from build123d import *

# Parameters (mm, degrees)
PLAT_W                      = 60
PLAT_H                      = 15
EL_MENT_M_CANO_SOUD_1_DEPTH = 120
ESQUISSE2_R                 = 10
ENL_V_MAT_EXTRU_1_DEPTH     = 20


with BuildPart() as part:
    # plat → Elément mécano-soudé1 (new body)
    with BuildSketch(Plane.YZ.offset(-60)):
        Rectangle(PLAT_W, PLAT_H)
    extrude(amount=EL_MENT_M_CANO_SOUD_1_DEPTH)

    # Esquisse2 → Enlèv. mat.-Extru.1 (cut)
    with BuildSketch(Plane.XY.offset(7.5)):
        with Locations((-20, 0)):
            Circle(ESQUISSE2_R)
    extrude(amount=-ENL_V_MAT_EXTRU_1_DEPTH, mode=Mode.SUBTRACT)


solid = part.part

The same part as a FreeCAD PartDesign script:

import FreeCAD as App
import Part
import Sketcher

V = App.Vector


def add_polygon(sketch, points):
    """Adds a closed chain of lines whose ends are joined by coincident constraints."""
    first, n = sketch.GeometryCount, len(points)
    for a, b in zip(points, points[1:] + points[:1]):
        sketch.addGeometry(Part.LineSegment(App.Vector(*a, 0), App.Vector(*b, 0)), False)
    for i in range(n):
        sketch.addConstraint(Sketcher.Constraint("Coincident", first + i, 2, first + (i + 1) % n, 1))

doc = App.newDocument("Part")
params = doc.addObject("Spreadsheet::Sheet", "Params")
for row, (alias, value) in enumerate([
    ("sketch1_width", "60 mm"),
    ("sketch1_height", "15 mm"),
    ("pad1_length", "120 mm"),
    ("sketch2_diameter", "20 mm"),
    ("pocket1_length", "20 mm"),
], start=1):
    params.set(f"A{row}", alias)
    params.set(f"B{row}", "=" + value)
    params.setAlias(f"B{row}", alias)

body = doc.addObject("PartDesign::Body", "Body")

sketch1 = body.newObject("Sketcher::SketchObject", "Sketch")
sketch1.AttachmentSupport = (doc.getObject("YZ_Plane"), [""])
sketch1.MapMode = "FlatFace"
sketch1.AttachmentOffset = App.Placement(V(0, 0, -60), App.Rotation())
add_polygon(sketch1, [(-30, 8), (-30, -8), (30, -8), (30, 8)])
sketch1.addConstraint([
    Sketcher.Constraint("Vertical", 0),
    Sketcher.Constraint("Horizontal", 1),
    Sketcher.Constraint("Vertical", 2),
    Sketcher.Constraint("Horizontal", 3),
    Sketcher.Constraint("Symmetric", 0, 2, 2, 2, -1, 1),
    Sketcher.Constraint("DistanceX", 1, 1, 1, 2, 60.0),
    Sketcher.Constraint("DistanceY", 0, 2, 0, 1, 15.0),
])
sketch1.setExpression("Constraints[9]", "Params.sketch1_width")
sketch1.setExpression("Constraints[10]", "Params.sketch1_height")
pad1 = body.newObject("PartDesign::Pad", "Pad")
pad1.Profile = sketch1
pad1.setExpression("Length", "Params.pad1_length")

sketch2 = body.newObject("Sketcher::SketchObject", "Sketch001")
sketch2.AttachmentSupport = (doc.getObject("XY_Plane"), [""])
sketch2.MapMode = "FlatFace"
sketch2.AttachmentOffset = App.Placement(V(0, 0, 7.5), App.Rotation())
sketch2.addGeometry(Part.Circle(V(-20, 0, 0), V(0, 0, 1), 10), False)
sketch2.addConstraint([
    Sketcher.Constraint("PointOnObject", 0, 3, -1),
    Sketcher.Constraint("Diameter", 0, 20.0),
    Sketcher.Constraint("DistanceX", 0, 3, -1, 1, 20.0),
])
sketch2.setExpression("Constraints[1]", "Params.sketch2_diameter")
pocket1 = body.newObject("PartDesign::Pocket", "Pocket")
pocket1.Profile = sketch2
pocket1.setExpression("Length", "Params.pocket1_length")

doc.recompute()
